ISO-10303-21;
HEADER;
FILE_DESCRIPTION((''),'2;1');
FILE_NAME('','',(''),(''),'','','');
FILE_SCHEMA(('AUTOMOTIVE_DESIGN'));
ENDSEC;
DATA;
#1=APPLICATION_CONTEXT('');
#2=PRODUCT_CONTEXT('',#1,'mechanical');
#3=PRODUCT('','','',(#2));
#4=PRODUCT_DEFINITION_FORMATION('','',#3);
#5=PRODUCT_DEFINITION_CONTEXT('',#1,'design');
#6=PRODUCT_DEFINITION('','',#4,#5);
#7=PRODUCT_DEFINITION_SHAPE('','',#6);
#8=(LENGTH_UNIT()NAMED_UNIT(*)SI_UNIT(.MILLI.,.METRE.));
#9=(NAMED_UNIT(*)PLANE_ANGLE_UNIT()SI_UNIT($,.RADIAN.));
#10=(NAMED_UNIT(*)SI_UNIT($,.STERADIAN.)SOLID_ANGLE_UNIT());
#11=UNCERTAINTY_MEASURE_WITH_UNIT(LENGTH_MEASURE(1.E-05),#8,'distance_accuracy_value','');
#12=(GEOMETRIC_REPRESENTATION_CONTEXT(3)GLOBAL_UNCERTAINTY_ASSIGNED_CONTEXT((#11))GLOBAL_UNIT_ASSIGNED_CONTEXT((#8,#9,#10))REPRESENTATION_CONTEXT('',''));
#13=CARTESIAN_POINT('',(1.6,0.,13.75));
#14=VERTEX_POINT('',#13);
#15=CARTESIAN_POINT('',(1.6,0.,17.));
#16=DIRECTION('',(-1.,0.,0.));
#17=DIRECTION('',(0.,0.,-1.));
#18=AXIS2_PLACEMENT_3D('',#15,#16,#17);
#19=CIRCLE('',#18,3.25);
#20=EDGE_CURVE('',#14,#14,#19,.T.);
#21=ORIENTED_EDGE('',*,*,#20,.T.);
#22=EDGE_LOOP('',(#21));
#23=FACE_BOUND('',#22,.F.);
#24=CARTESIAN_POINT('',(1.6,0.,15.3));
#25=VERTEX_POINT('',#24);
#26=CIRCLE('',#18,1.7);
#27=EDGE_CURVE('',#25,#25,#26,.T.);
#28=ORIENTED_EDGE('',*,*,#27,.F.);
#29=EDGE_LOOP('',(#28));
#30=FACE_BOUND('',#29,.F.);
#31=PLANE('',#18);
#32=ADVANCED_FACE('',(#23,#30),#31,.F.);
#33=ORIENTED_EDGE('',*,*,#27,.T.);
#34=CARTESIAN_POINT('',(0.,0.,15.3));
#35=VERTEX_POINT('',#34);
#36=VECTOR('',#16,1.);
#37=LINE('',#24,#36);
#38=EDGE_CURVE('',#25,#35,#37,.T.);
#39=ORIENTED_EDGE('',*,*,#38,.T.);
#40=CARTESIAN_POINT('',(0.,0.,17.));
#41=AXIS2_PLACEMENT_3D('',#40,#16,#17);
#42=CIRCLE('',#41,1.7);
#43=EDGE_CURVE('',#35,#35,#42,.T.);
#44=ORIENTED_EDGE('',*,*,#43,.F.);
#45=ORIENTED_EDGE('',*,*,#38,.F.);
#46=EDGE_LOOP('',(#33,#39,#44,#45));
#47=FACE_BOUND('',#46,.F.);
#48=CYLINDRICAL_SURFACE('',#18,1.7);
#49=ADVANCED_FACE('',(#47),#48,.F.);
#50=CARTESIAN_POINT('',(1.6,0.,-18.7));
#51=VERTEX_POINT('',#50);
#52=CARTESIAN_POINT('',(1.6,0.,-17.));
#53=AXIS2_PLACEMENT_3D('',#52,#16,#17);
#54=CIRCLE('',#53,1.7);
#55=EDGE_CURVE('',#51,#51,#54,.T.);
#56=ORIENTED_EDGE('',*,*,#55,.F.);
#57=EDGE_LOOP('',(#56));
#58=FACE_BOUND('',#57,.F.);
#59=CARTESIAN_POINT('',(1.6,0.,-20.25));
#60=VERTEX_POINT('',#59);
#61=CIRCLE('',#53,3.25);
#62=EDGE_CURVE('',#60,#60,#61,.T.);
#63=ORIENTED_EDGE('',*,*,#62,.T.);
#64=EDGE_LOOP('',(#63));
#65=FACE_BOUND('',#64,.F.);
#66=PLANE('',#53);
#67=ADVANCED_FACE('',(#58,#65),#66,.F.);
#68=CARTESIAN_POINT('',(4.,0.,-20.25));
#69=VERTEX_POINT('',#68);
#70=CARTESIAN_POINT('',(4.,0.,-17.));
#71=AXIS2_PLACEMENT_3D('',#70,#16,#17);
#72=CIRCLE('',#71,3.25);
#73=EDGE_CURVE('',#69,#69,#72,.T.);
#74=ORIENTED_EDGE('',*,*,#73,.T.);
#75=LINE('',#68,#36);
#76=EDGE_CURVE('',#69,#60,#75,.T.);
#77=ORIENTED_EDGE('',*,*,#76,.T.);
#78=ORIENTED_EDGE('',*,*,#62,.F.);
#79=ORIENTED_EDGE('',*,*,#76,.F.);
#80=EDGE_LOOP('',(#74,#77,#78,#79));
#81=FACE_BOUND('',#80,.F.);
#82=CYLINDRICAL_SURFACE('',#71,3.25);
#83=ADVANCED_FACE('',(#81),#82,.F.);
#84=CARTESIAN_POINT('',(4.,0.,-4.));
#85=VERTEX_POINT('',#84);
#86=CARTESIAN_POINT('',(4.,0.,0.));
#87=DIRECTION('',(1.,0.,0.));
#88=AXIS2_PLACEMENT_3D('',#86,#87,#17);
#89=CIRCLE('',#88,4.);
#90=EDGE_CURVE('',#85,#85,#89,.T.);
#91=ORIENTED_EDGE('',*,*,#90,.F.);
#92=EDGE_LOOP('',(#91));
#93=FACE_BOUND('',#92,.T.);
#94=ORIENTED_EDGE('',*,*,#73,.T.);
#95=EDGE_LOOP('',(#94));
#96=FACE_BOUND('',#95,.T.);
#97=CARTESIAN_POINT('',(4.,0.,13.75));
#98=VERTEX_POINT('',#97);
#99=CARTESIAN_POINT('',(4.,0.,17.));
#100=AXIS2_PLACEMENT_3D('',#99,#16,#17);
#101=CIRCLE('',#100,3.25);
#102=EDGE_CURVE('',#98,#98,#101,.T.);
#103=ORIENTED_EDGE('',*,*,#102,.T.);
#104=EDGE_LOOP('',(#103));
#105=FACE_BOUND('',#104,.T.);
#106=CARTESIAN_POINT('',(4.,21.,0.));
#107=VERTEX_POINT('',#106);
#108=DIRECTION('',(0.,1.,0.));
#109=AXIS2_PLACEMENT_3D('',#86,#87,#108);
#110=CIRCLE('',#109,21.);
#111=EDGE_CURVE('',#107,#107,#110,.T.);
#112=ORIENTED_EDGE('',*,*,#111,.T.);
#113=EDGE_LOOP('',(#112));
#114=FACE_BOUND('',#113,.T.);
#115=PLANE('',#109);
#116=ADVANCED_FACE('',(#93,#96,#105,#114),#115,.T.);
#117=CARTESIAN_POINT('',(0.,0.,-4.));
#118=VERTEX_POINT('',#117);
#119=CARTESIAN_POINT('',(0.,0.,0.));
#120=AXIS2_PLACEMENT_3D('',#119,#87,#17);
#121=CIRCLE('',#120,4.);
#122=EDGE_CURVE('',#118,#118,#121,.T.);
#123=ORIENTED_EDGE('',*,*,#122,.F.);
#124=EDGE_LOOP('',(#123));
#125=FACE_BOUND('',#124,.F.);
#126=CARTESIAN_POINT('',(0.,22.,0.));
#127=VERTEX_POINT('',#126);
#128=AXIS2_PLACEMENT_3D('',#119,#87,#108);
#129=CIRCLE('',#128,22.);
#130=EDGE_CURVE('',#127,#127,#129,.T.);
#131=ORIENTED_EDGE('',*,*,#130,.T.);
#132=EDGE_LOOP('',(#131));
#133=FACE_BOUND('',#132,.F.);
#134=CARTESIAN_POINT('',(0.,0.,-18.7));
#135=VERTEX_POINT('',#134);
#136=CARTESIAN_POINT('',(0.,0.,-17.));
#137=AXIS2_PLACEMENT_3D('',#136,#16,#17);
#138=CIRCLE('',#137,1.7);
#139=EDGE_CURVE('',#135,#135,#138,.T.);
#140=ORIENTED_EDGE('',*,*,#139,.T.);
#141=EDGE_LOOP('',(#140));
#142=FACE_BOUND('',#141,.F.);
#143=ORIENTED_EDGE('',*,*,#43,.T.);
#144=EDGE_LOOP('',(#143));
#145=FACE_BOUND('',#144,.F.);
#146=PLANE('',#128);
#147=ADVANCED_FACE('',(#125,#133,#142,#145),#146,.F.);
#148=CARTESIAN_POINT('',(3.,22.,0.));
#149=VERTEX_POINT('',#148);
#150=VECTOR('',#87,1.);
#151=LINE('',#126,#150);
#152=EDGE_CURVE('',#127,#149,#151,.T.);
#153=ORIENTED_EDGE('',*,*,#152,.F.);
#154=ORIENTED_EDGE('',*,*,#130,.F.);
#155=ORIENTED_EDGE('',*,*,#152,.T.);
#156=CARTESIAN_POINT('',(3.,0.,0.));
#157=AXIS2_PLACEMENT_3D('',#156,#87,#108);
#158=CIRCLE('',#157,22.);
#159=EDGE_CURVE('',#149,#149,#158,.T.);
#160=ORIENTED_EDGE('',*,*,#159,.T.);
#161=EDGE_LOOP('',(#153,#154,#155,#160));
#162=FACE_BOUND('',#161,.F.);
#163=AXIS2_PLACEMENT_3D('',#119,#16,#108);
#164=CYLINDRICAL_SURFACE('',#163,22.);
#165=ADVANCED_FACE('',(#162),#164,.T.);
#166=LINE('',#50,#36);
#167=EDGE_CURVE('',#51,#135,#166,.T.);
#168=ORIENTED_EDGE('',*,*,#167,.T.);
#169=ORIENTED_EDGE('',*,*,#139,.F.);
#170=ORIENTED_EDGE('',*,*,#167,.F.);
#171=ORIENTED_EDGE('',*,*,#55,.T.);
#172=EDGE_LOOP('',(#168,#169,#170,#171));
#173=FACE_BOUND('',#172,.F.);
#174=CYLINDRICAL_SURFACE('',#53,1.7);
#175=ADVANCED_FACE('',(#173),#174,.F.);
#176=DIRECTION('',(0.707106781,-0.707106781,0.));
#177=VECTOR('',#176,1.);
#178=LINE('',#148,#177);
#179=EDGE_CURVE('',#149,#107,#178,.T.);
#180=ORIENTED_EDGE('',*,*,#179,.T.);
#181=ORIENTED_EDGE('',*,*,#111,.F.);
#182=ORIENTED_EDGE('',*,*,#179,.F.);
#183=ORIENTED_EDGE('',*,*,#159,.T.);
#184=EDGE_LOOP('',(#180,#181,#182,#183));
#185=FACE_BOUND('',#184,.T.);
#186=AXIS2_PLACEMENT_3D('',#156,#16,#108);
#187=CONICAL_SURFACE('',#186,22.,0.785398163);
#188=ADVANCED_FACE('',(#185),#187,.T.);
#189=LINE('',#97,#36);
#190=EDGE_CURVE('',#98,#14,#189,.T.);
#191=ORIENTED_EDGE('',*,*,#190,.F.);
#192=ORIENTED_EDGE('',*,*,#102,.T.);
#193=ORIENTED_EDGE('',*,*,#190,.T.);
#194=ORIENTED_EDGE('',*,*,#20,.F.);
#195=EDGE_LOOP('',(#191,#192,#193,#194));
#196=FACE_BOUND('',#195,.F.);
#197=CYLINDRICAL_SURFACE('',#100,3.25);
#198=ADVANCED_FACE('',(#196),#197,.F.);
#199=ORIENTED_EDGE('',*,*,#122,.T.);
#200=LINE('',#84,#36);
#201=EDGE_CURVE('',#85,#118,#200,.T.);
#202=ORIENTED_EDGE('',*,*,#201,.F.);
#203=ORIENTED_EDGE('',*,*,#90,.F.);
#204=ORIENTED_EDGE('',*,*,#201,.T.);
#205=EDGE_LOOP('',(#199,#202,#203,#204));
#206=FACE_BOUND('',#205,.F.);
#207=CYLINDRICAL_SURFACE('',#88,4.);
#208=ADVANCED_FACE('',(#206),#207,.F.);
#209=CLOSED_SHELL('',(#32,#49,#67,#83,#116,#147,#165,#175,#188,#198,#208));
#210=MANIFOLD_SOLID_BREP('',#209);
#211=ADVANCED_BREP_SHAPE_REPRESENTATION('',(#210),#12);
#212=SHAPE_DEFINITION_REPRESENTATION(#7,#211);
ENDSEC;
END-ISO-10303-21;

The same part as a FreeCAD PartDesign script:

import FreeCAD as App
import Part
import Sketcher

V = App.Vector
Q = App.Units.Quantity


def edges_at(feature, points):
    """Names of the edges that pass closest to the given points."""
    edges = feature.Shape.Edges
    near = lambda p: min(range(len(edges)), key=lambda i: edges[i].distToShape(Part.Vertex(*p))[0])
    return sorted({f"Edge{near(p) + 1}" for p in points})

doc = App.newDocument("Part")
params = doc.addObject("Spreadsheet::Sheet", "Params")
for row, (alias, value) in enumerate([
    ("sketch1_diameter", "44 mm"),
    ("pad1_length", "4 mm"),
    ("sketch2_diameter", "3.4 mm"),
    ("hole_diameter", "3.4 mm"),
    ("hole_depth", "8.8 mm"),
    ("hole_cbore_diameter", "6.5 mm"),
    ("hole_cbore_depth", "2.4 mm"),
    ("sketch3_diameter", "8 mm"),
    ("pocket1_length", "4 mm"),
    ("chamfer_size", "1 mm"),
], start=1):
    params.set(f"A{row}", alias)
    params.set(f"B{row}", "=" + value)
    params.setAlias(f"B{row}", alias)

body = doc.addObject("PartDesign::Body", "Body")

# Sketch on YZ plane
sketch1 = body.newObject("Sketcher::SketchObject", "Sketch")
sketch1.AttachmentSupport = (doc.getObject("YZ_Plane"), [""])
sketch1.MapMode = "FlatFace"
sketch1.addGeometry(Part.Circle(V(0, 0, 0), V(0, 0, 1), 22), False)
sketch1.addConstraint(Sketcher.Constraint("Coincident", 0, 3, -1, 1))
sketch1.addConstraint(Sketcher.Constraint("Diameter", 0, Q("44 mm")))
sketch1.setExpression("Constraints[1]", "Params.sketch1_diameter")
pad1 = body.newObject("PartDesign::Pad", "Pad")
pad1.Profile = sketch1
pad1.setExpression("Length", "Params.pad1_length")

# Sketch on YZ plane
sketch2 = body.newObject("Sketcher::SketchObject", "Sketch001")
sketch2.AttachmentSupport = (doc.getObject("YZ_Plane"), [""])
sketch2.MapMode = "FlatFace"
sketch2.AttachmentOffset = App.Placement(V(0, 0, 4), App.Rotation())
sketch2.addGeometry(Part.Circle(V(0, 17, 0), V(0, 0, 1), 1.7), False)
sketch2.addGeometry(Part.Circle(V(0, -17, 0), V(0, 0, 1), 1.7), False)
sketch2.addConstraint(Sketcher.Constraint("Equal", 0, 1))
sketch2.addConstraint(Sketcher.Constraint("Symmetric", 0, 3, 1, 3, -1, 1))
sketch2.addConstraint(Sketcher.Constraint("PointOnObject", 0, 3, -2))
sketch2.addConstraint(Sketcher.Constraint("Diameter", 0, Q("3.4 mm")))
sketch2.addConstraint(Sketcher.Constraint("DistanceY", -1, 1, 0, 3, Q("17 mm")))
sketch2.setExpression("Constraints[3]", "Params.sketch2_diameter")
doc.recompute()
hole = body.newObject("PartDesign::Hole", "Hole")
hole.Profile = sketch2
hole.ThreadType = "None"
hole.setExpression("Diameter", "Params.hole_diameter")
hole.DepthType = "Dimension"
hole.setExpression("Depth", "Params.hole_depth")
hole.DrillPoint = "Angled"
hole.DrillPointAngle = 118
hole.HoleCutType = "Counterbore"
hole.setExpression("HoleCutDiameter", "Params.hole_cbore_diameter")
hole.setExpression("HoleCutDepth", "Params.hole_cbore_depth")

# Sketch on YZ plane
sketch3 = body.newObject("Sketcher::SketchObject", "Sketch002")
sketch3.AttachmentSupport = (doc.getObject("YZ_Plane"), [""])
sketch3.MapMode = "FlatFace"
sketch3.AttachmentOffset = App.Placement(V(0, 0, 4), App.Rotation())
sketch3.addGeometry(Part.Circle(V(0, 0, 0), V(0, 0, 1), 4), False)
sketch3.addConstraint(Sketcher.Constraint("Coincident", 0, 3, -1, 1))
sketch3.addConstraint(Sketcher.Constraint("Diameter", 0, Q("8 mm")))
sketch3.setExpression("Constraints[1]", "Params.sketch3_diameter")
pocket1 = body.newObject("PartDesign::Pocket", "Pocket")
pocket1.Profile = sketch3
pocket1.setExpression("Length", "Params.pocket1_length")
doc.recompute()

chamfer = body.newObject("PartDesign::Chamfer", "Chamfer")
chamfer.Base = (pocket1, edges_at(pocket1, [(4, -22, 0)]))
chamfer.setExpression("Size", "Params.chamfer_size")

doc.recompute()
